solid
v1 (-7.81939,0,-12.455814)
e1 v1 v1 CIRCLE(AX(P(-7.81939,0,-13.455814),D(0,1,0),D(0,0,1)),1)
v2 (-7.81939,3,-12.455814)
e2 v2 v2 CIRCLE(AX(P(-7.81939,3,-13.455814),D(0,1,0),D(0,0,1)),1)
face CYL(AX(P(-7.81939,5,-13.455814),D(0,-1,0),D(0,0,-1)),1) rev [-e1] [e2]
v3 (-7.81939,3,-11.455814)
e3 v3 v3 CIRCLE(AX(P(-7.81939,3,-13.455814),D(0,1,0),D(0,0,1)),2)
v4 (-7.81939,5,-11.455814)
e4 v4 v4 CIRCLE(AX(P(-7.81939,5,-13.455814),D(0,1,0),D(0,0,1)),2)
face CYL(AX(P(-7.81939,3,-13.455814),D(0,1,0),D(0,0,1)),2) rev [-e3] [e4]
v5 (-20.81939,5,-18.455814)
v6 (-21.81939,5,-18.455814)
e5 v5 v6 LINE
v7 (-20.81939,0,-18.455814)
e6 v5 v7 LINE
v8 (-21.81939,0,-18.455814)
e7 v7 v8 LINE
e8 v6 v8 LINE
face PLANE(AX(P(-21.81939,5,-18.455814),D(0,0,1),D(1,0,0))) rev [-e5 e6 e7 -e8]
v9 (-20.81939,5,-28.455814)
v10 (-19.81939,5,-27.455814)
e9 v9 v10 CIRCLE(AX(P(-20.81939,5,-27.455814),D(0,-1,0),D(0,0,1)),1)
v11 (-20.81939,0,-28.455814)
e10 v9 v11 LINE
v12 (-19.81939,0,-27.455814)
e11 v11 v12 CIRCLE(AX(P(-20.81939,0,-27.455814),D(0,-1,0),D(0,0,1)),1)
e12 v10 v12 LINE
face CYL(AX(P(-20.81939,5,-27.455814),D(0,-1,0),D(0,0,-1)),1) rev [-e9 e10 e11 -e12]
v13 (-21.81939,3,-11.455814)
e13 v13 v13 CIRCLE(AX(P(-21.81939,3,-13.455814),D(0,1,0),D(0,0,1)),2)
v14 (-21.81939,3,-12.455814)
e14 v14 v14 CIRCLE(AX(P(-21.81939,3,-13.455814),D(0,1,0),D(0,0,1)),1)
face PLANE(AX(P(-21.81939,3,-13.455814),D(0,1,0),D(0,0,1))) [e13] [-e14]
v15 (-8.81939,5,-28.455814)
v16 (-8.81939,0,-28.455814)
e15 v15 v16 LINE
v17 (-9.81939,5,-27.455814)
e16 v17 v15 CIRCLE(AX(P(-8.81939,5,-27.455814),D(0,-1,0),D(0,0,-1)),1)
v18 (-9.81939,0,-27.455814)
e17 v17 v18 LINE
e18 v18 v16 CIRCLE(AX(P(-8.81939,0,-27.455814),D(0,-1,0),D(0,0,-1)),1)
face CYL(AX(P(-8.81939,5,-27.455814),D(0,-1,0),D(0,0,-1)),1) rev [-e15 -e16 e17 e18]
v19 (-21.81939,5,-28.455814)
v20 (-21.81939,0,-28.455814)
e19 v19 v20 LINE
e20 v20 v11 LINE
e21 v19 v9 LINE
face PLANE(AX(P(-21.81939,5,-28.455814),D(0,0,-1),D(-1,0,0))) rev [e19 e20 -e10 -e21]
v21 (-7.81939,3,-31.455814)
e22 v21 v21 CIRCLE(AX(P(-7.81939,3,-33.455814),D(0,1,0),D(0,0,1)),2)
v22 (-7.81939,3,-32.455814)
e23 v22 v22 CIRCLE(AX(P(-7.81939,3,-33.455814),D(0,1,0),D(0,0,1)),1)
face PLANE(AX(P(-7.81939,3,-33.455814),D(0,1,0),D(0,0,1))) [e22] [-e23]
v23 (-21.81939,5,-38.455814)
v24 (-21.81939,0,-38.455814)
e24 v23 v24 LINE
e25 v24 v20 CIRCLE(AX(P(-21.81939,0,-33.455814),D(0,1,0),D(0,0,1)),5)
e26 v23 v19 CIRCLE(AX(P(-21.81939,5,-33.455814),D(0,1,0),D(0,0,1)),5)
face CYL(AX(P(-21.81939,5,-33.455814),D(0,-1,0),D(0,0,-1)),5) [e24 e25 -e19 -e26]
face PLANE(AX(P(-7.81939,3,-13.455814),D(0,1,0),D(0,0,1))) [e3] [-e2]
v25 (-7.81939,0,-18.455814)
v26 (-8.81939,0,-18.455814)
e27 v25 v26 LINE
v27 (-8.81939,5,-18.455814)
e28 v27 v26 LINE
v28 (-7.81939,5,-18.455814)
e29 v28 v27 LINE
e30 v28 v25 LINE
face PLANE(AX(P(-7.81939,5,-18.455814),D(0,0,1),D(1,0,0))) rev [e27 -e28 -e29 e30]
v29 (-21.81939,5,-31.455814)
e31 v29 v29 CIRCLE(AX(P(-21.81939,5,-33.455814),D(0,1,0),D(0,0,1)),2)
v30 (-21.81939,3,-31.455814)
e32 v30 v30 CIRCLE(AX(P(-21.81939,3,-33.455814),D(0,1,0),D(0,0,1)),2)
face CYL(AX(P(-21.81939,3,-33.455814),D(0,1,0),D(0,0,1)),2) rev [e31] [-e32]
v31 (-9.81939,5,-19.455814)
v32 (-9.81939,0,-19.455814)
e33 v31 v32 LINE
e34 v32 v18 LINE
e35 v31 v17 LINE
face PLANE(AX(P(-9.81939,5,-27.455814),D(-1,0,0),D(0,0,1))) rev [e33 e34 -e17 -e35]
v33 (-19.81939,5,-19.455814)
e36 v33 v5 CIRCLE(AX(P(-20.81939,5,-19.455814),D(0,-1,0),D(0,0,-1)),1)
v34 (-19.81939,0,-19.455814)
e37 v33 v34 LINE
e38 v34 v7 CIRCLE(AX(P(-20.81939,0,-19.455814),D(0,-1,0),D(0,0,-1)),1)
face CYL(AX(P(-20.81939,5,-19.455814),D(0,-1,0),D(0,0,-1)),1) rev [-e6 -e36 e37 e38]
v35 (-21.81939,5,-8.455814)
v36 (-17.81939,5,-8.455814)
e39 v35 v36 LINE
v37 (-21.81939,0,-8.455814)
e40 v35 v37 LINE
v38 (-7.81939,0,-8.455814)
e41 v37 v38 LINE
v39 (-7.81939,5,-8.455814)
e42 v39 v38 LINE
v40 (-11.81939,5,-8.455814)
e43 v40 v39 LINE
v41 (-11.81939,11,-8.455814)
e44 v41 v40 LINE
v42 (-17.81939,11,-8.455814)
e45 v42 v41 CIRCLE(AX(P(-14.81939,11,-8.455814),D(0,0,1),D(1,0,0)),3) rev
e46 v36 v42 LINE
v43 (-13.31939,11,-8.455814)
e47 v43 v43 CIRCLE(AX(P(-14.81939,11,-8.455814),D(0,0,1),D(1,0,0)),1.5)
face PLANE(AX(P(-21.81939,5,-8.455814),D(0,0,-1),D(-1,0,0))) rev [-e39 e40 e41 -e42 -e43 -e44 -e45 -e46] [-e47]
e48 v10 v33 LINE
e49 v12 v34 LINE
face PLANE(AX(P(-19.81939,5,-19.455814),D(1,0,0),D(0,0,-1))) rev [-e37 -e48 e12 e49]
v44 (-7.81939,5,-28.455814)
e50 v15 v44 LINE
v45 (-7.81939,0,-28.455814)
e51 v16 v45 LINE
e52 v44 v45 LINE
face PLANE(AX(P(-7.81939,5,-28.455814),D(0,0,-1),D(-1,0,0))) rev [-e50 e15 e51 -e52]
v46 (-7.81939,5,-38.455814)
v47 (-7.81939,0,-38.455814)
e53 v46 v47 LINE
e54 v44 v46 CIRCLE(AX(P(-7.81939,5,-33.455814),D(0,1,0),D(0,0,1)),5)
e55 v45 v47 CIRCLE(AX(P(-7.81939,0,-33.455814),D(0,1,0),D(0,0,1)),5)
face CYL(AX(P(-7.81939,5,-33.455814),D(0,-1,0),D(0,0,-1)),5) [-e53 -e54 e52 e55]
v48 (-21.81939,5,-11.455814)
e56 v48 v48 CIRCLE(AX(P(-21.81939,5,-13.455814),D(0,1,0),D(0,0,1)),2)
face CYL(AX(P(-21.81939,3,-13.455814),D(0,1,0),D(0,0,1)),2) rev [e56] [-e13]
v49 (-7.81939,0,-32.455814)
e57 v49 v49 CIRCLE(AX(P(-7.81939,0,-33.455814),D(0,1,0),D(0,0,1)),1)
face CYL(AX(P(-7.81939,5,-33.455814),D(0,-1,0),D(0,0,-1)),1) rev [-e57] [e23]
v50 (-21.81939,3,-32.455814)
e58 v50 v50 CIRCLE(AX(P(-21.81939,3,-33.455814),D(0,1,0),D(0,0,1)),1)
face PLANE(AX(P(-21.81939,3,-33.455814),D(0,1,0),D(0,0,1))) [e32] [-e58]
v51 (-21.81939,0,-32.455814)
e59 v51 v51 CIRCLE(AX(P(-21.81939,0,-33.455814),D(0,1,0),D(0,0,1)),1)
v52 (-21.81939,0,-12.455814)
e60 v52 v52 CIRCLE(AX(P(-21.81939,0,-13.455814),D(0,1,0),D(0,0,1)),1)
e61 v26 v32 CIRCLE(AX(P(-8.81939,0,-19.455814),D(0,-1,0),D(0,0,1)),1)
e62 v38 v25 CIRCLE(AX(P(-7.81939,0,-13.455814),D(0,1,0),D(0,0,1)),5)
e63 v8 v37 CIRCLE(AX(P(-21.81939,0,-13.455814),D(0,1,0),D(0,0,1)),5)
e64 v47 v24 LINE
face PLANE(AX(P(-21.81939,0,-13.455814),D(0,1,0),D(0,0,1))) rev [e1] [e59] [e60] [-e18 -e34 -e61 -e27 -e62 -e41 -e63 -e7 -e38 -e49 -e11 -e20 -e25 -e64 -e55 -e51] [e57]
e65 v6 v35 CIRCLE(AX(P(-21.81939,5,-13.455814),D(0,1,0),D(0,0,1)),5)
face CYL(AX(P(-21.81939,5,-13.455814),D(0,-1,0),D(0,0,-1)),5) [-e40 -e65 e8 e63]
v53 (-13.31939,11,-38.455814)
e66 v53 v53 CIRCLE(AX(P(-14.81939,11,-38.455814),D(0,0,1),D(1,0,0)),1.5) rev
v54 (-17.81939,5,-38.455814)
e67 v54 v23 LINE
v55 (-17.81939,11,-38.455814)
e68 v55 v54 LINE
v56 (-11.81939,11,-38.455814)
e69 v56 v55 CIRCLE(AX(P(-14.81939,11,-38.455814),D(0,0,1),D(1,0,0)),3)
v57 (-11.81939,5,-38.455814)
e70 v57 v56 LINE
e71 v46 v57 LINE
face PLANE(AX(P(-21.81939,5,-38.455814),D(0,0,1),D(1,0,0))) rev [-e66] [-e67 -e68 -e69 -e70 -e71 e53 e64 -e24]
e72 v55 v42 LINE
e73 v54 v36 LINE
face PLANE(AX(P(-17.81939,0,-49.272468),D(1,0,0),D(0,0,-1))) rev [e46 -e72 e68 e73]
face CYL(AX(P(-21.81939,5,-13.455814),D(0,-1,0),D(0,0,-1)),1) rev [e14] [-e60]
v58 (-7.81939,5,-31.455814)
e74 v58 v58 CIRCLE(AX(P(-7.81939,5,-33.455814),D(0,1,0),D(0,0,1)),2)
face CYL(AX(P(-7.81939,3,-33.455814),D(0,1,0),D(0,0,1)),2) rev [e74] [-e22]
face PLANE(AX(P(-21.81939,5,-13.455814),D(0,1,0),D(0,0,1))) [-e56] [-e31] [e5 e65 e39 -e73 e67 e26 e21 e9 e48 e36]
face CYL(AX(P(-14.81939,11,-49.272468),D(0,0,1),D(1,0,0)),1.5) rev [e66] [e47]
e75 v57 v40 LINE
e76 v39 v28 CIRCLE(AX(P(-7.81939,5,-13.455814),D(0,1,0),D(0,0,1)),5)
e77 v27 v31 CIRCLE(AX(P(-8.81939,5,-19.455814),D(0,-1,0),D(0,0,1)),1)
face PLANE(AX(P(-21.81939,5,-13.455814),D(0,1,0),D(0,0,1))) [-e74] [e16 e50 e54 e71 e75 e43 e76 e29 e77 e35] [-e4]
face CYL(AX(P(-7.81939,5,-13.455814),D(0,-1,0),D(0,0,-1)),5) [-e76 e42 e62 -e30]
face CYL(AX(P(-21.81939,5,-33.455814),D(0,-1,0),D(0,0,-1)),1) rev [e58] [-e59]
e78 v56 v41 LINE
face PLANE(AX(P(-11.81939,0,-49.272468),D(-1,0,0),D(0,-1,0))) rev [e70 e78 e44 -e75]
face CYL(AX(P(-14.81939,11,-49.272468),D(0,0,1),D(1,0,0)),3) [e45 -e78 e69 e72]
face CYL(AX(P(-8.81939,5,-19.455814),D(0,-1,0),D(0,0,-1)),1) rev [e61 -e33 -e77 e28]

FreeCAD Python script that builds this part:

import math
import FreeCAD as App
import Part
import Sketcher
from FreeCAD import Vector

doc = App.newDocument("Part")
body = doc.addObject("PartDesign::Body", "Body")

# Sketch on XZ plane
sketch1 = body.newObject("Sketcher::SketchObject", "Sketch")
sketch1.AttachmentSupport = (doc.getObject("XZ_Plane"), [""])
sketch1.MapMode = "FlatFace"
sketch1.addGeometry(Part.LineSegment(Vector(-20.8, -18.5, 0), Vector(-21.8, -18.5, 0)), False)
sketch1.addGeometry(Part.ArcOfCircle(Part.Circle(Vector(-21.8, -13.5, 0), Vector(0, 0, 1), 5), math.radians(90), math.radians(270)), False)
sketch1.addGeometry(Part.LineSegment(Vector(-21.8, -8.5, 0), Vector(-7.8, -8.5, 0)), False)
sketch1.addGeometry(Part.ArcOfCircle(Part.Circle(Vector(-7.8, -13.5, 0), Vector(0, 0, 1), 5), math.radians(-90), math.radians(90)), False)
sketch1.addGeometry(Part.LineSegment(Vector(-7.8, -18.5, 0), Vector(-8.8, -18.5, 0)), False)
sketch1.addGeometry(Part.ArcOfCircle(Part.Circle(Vector(-8.8, -19.5, 0), Vector(0, 0, 1), 1), math.radians(90), math.radians(180)), False)
sketch1.addGeometry(Part.LineSegment(Vector(-9.8, -19.5, 0), Vector(-9.8, -27.5, 0)), False)
sketch1.addGeometry(Part.ArcOfCircle(Part.Circle(Vector(-8.8, -27.5, 0), Vector(0, 0, 1), 1), math.radians(-180), math.radians(-90)), False)
sketch1.addGeometry(Part.LineSegment(Vector(-8.8, -28.5, 0), Vector(-7.8, -28.5, 0)), False)
sketch1.addGeometry(Part.ArcOfCircle(Part.Circle(Vector(-7.8, -33.5, 0), Vector(0, 0, 1), 5), math.radians(-90), math.radians(90)), False)
sketch1.addGeometry(Part.LineSegment(Vector(-7.8, -38.5, 0), Vector(-21.8, -38.5, 0)), False)
sketch1.addGeometry(Part.ArcOfCircle(Part.Circle(Vector(-21.8, -33.5, 0), Vector(0, 0, 1), 5), math.radians(90), math.radians(270)), False)
sketch1.addGeometry(Part.LineSegment(Vector(-21.8, -28.5, 0), Vector(-20.8, -28.5, 0)), False)
sketch1.addGeometry(Part.ArcOfCircle(Part.Circle(Vector(-20.8, -27.5, 0), Vector(0, 0, 1), 1), math.radians(-90), math.radians(0)), False)
sketch1.addGeometry(Part.LineSegment(Vector(-19.8, -27.5, 0), Vector(-19.8, -19.5, 0)), False)
sketch1.addGeometry(Part.ArcOfCircle(Part.Circle(Vector(-20.8, -19.5, 0), Vector(0, 0, 1), 1), math.radians(0), math.radians(90)), False)
sketch1.addGeometry(Part.Circle(Vector(-7.8, -13.5, 0), Vector(0, 0, 1), 1), False)
sketch1.addGeometry(Part.Circle(Vector(-21.8, -13.5, 0), Vector(0, 0, 1), 1), False)
sketch1.addGeometry(Part.Circle(Vector(-7.8, -33.5, 0), Vector(0, 0, 1), 1), False)
sketch1.addGeometry(Part.Circle(Vector(-21.8, -33.5, 0), Vector(0, 0, 1), 1), False)
sketch1.addConstraint(Sketcher.Constraint("Tangent", 0, 2, 1, 2))
sketch1.addConstraint(Sketcher.Constraint("Tangent", 1, 1, 2, 1))
sketch1.addConstraint(Sketcher.Constraint("Tangent", 2, 2, 3, 2))
sketch1.addConstraint(Sketcher.Constraint("Tangent", 3, 1, 4, 1))
sketch1.addConstraint(Sketcher.Constraint("Tangent", 4, 2, 5, 1))
sketch1.addConstraint(Sketcher.Constraint("Tangent", 5, 2, 6, 1))
sketch1.addConstraint(Sketcher.Constraint("Tangent", 6, 2, 7, 1))
sketch1.addConstraint(Sketcher.Constraint("Tangent", 7, 2, 8, 1))
sketch1.addConstraint(Sketcher.Constraint("Tangent", 8, 2, 9, 2))
sketch1.addConstraint(Sketcher.Constraint("Tangent", 9, 1, 10, 1))
sketch1.addConstraint(Sketcher.Constraint("Tangent", 10, 2, 11, 2))
sketch1.addConstraint(Sketcher.Constraint("Tangent", 11, 1, 12, 1))
sketch1.addConstraint(Sketcher.Constraint("Tangent", 12, 2, 13, 1))
sketch1.addConstraint(Sketcher.Constraint("Tangent", 13, 2, 14, 1))
sketch1.addConstraint(Sketcher.Constraint("Tangent", 14, 2, 15, 1))
sketch1.addConstraint(Sketcher.Constraint("Tangent", 15, 2, 0, 1))
sketch1.addConstraint(Sketcher.Constraint("Horizontal", 0))
sketch1.addConstraint(Sketcher.Constraint("Horizontal", 2))
sketch1.addConstraint(Sketcher.Constraint("Horizontal", 4))
sketch1.addConstraint(Sketcher.Constraint("Vertical", 6))
sketch1.addConstraint(Sketcher.Constraint("Horizontal", 8))
sketch1.addConstraint(Sketcher.Constraint("Horizontal", 10))
sketch1.addConstraint(Sketcher.Constraint("Horizontal", 12))
sketch1.addConstraint(Sketcher.Constraint("Vertical", 14))
sketch1.addConstraint(Sketcher.Constraint("Coincident", 16, 3, 3, 3))
sketch1.addConstraint(Sketcher.Constraint("Coincident", 17, 3, 1, 3))
sketch1.addConstraint(Sketcher.Constraint("Coincident", 18, 3, 9, 3))
sketch1.addConstraint(Sketcher.Constraint("Coincident", 19, 3, 11, 3))
sketch1.addConstraint(Sketcher.Constraint("Equal", 1, 3))
sketch1.addConstraint(Sketcher.Constraint("Equal", 5, 7))
sketch1.addConstraint(Sketcher.Constraint("Equal", 3, 9))
sketch1.addConstraint(Sketcher.Constraint("Equal", 9, 11))
sketch1.addConstraint(Sketcher.Constraint("Equal", 7, 13))
sketch1.addConstraint(Sketcher.Constraint("Equal", 13, 15))
sketch1.addConstraint(Sketcher.Constraint("Equal", 15, 16))
sketch1.addConstraint(Sketcher.Constraint("Equal", 16, 17))
sketch1.addConstraint(Sketcher.Constraint("Equal", 17, 18))
sketch1.addConstraint(Sketcher.Constraint("Equal", 18, 19))
sketch1.addConstraint(Sketcher.Constraint("Vertical", 3, 3, 9, 3))
sketch1.addConstraint(Sketcher.Constraint("Vertical", 1, 3, 11, 3))
sketch1.addConstraint(Sketcher.Constraint("Equal", 0, 4))
sketch1.addConstraint(Sketcher.Constraint("Diameter", 16, 2.0))
sketch1.addConstraint(Sketcher.Constraint("Radius", 1, 5.0))
sketch1.addConstraint(Sketcher.Constraint("DistanceX", 0, 2, 0, 1, 1.0))
sketch1.addConstraint(Sketcher.Constraint("DistanceX", 2, 1, 2, 2, 14.0))
sketch1.addConstraint(Sketcher.Constraint("DistanceY", 6, 2, 6, 1, 8.0))
sketch1.addConstraint(Sketcher.Constraint("DistanceX", 1, 3, -1, 1, 21.81939))
sketch1.addConstraint(Sketcher.Constraint("DistanceY", 1, 3, -1, 1, 13.455814))
pad1 = body.newObject("PartDesign::Pad", "Pad")
pad1.Profile = sketch1
pad1.Length = 5
pad1.Reversed = True

# Sketch on XY plane
sketch2 = body.newObject("Sketcher::SketchObject", "Sketch001")
sketch2.AttachmentSupport = (doc.getObject("XY_Plane"), [""])
sketch2.MapMode = "FlatFace"
sketch2.AttachmentOffset = App.Placement(Vector(0, 0, -8.455814), App.Rotation())
sketch2.addGeometry(Part.LineSegment(Vector(-17.8, 11, 0), Vector(-17.8, 5, 0)), False)
sketch2.addGeometry(Part.LineSegment(Vector(-17.8, 5, 0), Vector(-11.8, 5, 0)), False)
sketch2.addGeometry(Part.LineSegment(Vector(-11.8, 5, 0), Vector(-11.8, 11, 0)), False)
sketch2.addGeometry(Part.ArcOfCircle(Part.Circle(Vector(-14.8, 11, 0), Vector(0, 0, 1), 3), math.radians(0), math.radians(180)), False)
sketch2.addGeometry(Part.Circle(Vector(-14.8, 11, 0), Vector(0, 0, 1), 1.5), False)
sketch2.addConstraint(Sketcher.Constraint("Coincident", 0, 2, 1, 1))
sketch2.addConstraint(Sketcher.Constraint("Coincident", 1, 2, 2, 1))
sketch2.addConstraint(Sketcher.Constraint("Tangent", 2, 2, 3, 1))
sketch2.addConstraint(Sketcher.Constraint("Tangent", 3, 2, 0, 1))
sketch2.addConstraint(Sketcher.Constraint("Vertical", 0))
sketch2.addConstraint(Sketcher.Constraint("Horizontal", 1))
sketch2.addConstraint(Sketcher.Constraint("Vertical", 2))
sketch2.addConstraint(Sketcher.Constraint("Coincident", 4, 3, 3, 3))
sketch2.addConstraint(Sketcher.Constraint("Equal", 1, 0))
sketch2.addConstraint(Sketcher.Constraint("Diameter", 4, 3.0))
sketch2.addConstraint(Sketcher.Constraint("Radius", 3, 3.0))
sketch2.addConstraint(Sketcher.Constraint("DistanceY", -1, 1, 3, 3, 11.0))
sketch2.addConstraint(Sketcher.Constraint("DistanceX", 3, 3, -1, 1, 14.81939))
pad2 = body.newObject("PartDesign::Pad", "Pad001")
pad2.Profile = sketch2
pad2.Length = 30
pad2.Reversed = True

# Sketch on XZ plane
sketch3 = body.newObject("Sketcher::SketchObject", "Sketch002")
sketch3.AttachmentSupport = (doc.getObject("XZ_Plane"), [""])
sketch3.MapMode = "FlatFace"
sketch3.AttachmentOffset = App.Placement(Vector(0, 0, -5), App.Rotation())
sketch3.addGeometry(Part.Circle(Vector(-21.8, -33.5, 0), Vector(0, 0, 1), 2), False)
sketch3.addGeometry(Part.Circle(Vector(-7.8, -33.5, 0), Vector(0, 0, 1), 2), False)
sketch3.addGeometry(Part.Circle(Vector(-21.8, -13.5, 0), Vector(0, 0, 1), 2), False)
sketch3.addGeometry(Part.Circle(Vector(-7.8, -13.5, 0), Vector(0, 0, 1), 2), False)
sketch3.addConstraint(Sketcher.Constraint("Equal", 0, 1))
sketch3.addConstraint(Sketcher.Constraint("Equal", 1, 2))
sketch3.addConstraint(Sketcher.Constraint("Equal", 2, 3))
sketch3.addConstraint(Sketcher.Constraint("Horizontal", 0, 3, 1, 3))
sketch3.addConstraint(Sketcher.Constraint("Horizontal", 2, 3, 3, 3))
sketch3.addConstraint(Sketcher.Constraint("Vertical", 0, 3, 2, 3))
sketch3.addConstraint(Sketcher.Constraint("Vertical", 1, 3, 3, 3))
sketch3.addConstraint(Sketcher.Constraint("Diameter", 0, 4.0))
sketch3.addConstraint(Sketcher.Constraint("DistanceX", 0, 3, 1, 3, 14.0))
sketch3.addConstraint(Sketcher.Constraint("DistanceY", 0, 3, 2, 3, 20.0))
sketch3.addConstraint(Sketcher.Constraint("DistanceX", 0, 3, -1, 1, 21.81939))
sketch3.addConstraint(Sketcher.Constraint("DistanceY", 0, 3, -1, 1, 33.455814))
pocket1 = body.newObject("PartDesign::Pocket", "Pocket")
pocket1.Profile = sketch3
pocket1.Length = 2
pocket1.Reversed = True

doc.recompute()
